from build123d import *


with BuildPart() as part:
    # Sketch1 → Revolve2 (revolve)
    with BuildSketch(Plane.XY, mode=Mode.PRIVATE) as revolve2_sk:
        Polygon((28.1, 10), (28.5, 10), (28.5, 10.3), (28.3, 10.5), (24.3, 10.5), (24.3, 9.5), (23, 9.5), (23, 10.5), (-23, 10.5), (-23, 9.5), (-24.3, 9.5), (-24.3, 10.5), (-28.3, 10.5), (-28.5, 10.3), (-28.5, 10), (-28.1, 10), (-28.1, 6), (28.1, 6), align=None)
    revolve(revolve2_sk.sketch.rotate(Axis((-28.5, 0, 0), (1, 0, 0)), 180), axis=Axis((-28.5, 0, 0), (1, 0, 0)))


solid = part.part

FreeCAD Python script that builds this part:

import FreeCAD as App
import Part
import Sketcher
from FreeCAD import Vector
Q = App.Units.Quantity


def add_polygon(sketch, points):
    """Adds a closed chain of lines whose ends are joined by coincident constraints."""
    first, n = sketch.GeometryCount, len(points)
    for a, b in zip(points, points[1:] + points[:1]):
        sketch.addGeometry(Part.LineSegment(App.Vector(*a, 0), App.Vector(*b, 0)), False)
    for i in range(n):
        sketch.addConstraint(Sketcher.Constraint("Coincident", first + i, 2, first + (i + 1) % n, 1))

doc = App.newDocument("Part")
body = doc.addObject("PartDesign::Body", "Body")

# Sketch on XY plane
sketch1 = doc.addObject("Sketcher::SketchObject", "Sketch")
body.addObject(sketch1)
sketch1.AttachmentSupport = (doc.XY_Plane, [""])
sketch1.MapMode = "FlatFace"
add_polygon(sketch1, [(28.1, 10), (28.5, 10), (28.5, 10.3), (28.3, 10.5), (24.3, 10.5), (24.3, 9.5), (23, 9.5), (23, 10.5), (-23, 10.5), (-23, 9.5), (-24.3, 9.5), (-24.3, 10.5), (-28.3, 10.5), (-28.5, 10.3), (-28.5, 10), (-28.1, 10), (-28.1, 6), (28.1, 6)])  # lines 0-17
sketch1.addConstraint([
    Sketcher.Constraint("Horizontal", 0),
    Sketcher.Constraint("Vertical", 1),
    Sketcher.Constraint("Horizontal", 3),
    Sketcher.Constraint("Vertical", 4),
    Sketcher.Constraint("Horizontal", 5),
    Sketcher.Constraint("Vertical", 6),
    Sketcher.Constraint("Horizontal", 7),
    Sketcher.Constraint("Vertical", 8),
    Sketcher.Constraint("Horizontal", 9),
    Sketcher.Constraint("Vertical", 10),
    Sketcher.Constraint("Horizontal", 11),
    Sketcher.Constraint("Vertical", 13),
    Sketcher.Constraint("Horizontal", 14),
    Sketcher.Constraint("Vertical", 15),
    Sketcher.Constraint("Horizontal", 16),
    Sketcher.Constraint("Vertical", 17),
    Sketcher.Constraint("Symmetric", 5, 2, 8, 2, -2),
    Sketcher.Constraint("Symmetric", 3, 2, 10, 2, -2),
    Sketcher.Constraint("Symmetric", 1, 2, 12, 2, -2),
    Sketcher.Constraint("Symmetric", 14, 2, 17, 2, -2),
    Sketcher.Constraint("Perpendicular", 2, 12),
    Sketcher.Constraint("Horizontal", 3, 2, 6, 2),
    Sketcher.Constraint("Equal", 3, 11),
    Sketcher.Constraint("Equal", 11, 15),
    Sketcher.Constraint("DistanceX", 3, 2, 3, 1, Q("4 mm")),
    Sketcher.Constraint("DistanceX", 7, 2, 7, 1, Q("46 mm")),
    Sketcher.Constraint("DistanceY", 4, 2, 4, 1, Q("1 mm")),
    Sketcher.Constraint("DistanceX", 0, 1, 0, 2, Q("0.4 mm")),
    Sketcher.Constraint("DistanceX", 5, 2, 5, 1, Q("1.3 mm")),
    Sketcher.Constraint("DistanceX", 16, 1, 16, 2, Q("56.2 mm")),
    Sketcher.Constraint("DistanceY", 1, 1, 1, 2, Q("0.3 mm")),
    Sketcher.Constraint("DistanceY", -1, 1, 0, 2, Q("10 mm")),
])
revolution = doc.addObject("PartDesign::Revolution", "Revolution")
body.addObject(revolution)
revolution.Profile = sketch1
revolution.ReferenceAxis = (sketch1, ["H_Axis"])
revolution.Angle = 360

doc.recompute()
